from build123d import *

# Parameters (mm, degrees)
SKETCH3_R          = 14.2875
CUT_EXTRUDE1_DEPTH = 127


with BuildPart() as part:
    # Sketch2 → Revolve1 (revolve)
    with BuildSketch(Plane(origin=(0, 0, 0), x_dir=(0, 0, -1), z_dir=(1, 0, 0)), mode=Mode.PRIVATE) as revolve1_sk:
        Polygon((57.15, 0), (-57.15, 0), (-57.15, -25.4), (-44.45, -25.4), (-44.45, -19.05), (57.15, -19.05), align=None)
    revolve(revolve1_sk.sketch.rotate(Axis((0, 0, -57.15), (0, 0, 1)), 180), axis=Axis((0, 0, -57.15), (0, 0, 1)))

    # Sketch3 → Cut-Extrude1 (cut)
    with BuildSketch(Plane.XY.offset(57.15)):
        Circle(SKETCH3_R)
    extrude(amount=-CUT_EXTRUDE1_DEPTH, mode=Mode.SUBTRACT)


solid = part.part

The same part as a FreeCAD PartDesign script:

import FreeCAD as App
import Part
import Sketcher
from FreeCAD import Vector
Q = App.Units.Quantity

doc = App.newDocument("Part")
params = doc.addObject("Spreadsheet::Sheet", "Params")
for row, (alias, value) in enumerate([
    ("sketch1_width", "1 in"),
    ("sketch1_height", "4 in"),
    ("sketch1_height2", "4.5 in"),
    ("sketch1_width2", "0.25 in"),
    ("revolution_angle", "360 deg"),
    ("sketch2_diameter", "1.125 in"),
    ("pocket1_length", "5 in"),
], start=1):
    params.set(f"A{row}", alias)
    params.set(f"B{row}", "=" + value)
    params.setAlias(f"B{row}", alias)

body = doc.addObject("PartDesign::Body", "Body")

# Sketch on YZ plane
sketch1 = body.newObject("Sketcher::SketchObject", "Sketch")
sketch1.AttachmentSupport = (doc.getObject("YZ_Plane"), [""])
sketch1.MapMode = "FlatFace"
sketch1.addGeometry([
    Part.LineSegment(Vector(0, -57, 0), Vector(0, 57, 0)),  # 0
    Part.LineSegment(Vector(0, 57, 0), Vector(-25, 57, 0)),  # 1
    Part.LineSegment(Vector(-25, 57, 0), Vector(-25, 44, 0)),  # 2
    Part.LineSegment(Vector(-25, 44, 0), Vector(-19, 44, 0)),  # 3
    Part.LineSegment(Vector(-19, 44, 0), Vector(-19, -57, 0)),  # 4
    Part.LineSegment(Vector(-19, -57, 0), Vector(0, -57, 0)),  # 5
], False)
sketch1.addConstraint([
    Sketcher.Constraint("Coincident", 0, 2, 1, 1),
    Sketcher.Constraint("Coincident", 1, 2, 2, 1),
    Sketcher.Constraint("Coincident", 2, 2, 3, 1),
    Sketcher.Constraint("Coincident", 3, 2, 4, 1),
    Sketcher.Constraint("Coincident", 4, 2, 5, 1),
    Sketcher.Constraint("Coincident", 5, 2, 0, 1),
    Sketcher.Constraint("Vertical", 0),
    Sketcher.Constraint("Horizontal", 1),
    Sketcher.Constraint("Vertical", 2),
    Sketcher.Constraint("Horizontal", 3),
    Sketcher.Constraint("Vertical", 4),
    Sketcher.Constraint("Horizontal", 5),
    Sketcher.Constraint("Symmetric", 0, 2, 5, 2, -1, 1),
    Sketcher.Constraint("DistanceX", 1, 2, 1, 1, Q("1 in")),
    Sketcher.Constraint("DistanceY", 4, 2, 4, 1, Q("4 in")),
    Sketcher.Constraint("DistanceY", 0, 1, 0, 2, Q("4.5 in")),
    Sketcher.Constraint("DistanceX", 3, 1, 3, 2, Q("0.25 in")),
])
sketch1.setExpression("Constraints[13]", "Params.sketch1_width")
sketch1.setExpression("Constraints[14]", "Params.sketch1_height")
sketch1.setExpression("Constraints[15]", "Params.sketch1_height2")
sketch1.setExpression("Constraints[16]", "Params.sketch1_width2")
revolution = body.newObject("PartDesign::Revolution", "Revolution")
revolution.Profile = sketch1
revolution.ReferenceAxis = (sketch1, ["V_Axis"])
revolution.setExpression("Angle", "Params.revolution_angle")

# Sketch on XY plane
sketch2 = body.newObject("Sketcher::SketchObject", "Sketch001")
sketch2.AttachmentSupport = (doc.getObject("XY_Plane"), [""])
sketch2.MapMode = "FlatFace"
sketch2.AttachmentOffset = App.Placement(Vector(0, 0, 2.25 * 25.4), App.Rotation())
sketch2.addGeometry(Part.Circle(Vector(0, 0, 0), Vector(0, 0, 1), 14), False)
sketch2.addConstraint([
    Sketcher.Constraint("Coincident", 0, 3, -1, 1),
    Sketcher.Constraint("Diameter", 0, Q("1.125 in")),
])
sketch2.setExpression("Constraints[1]", "Params.sketch2_diameter")
pocket1 = body.newObject("PartDesign::Pocket", "Pocket")
pocket1.Profile = sketch2
pocket1.setExpression("Length", "Params.pocket1_length")

doc.recompute()
